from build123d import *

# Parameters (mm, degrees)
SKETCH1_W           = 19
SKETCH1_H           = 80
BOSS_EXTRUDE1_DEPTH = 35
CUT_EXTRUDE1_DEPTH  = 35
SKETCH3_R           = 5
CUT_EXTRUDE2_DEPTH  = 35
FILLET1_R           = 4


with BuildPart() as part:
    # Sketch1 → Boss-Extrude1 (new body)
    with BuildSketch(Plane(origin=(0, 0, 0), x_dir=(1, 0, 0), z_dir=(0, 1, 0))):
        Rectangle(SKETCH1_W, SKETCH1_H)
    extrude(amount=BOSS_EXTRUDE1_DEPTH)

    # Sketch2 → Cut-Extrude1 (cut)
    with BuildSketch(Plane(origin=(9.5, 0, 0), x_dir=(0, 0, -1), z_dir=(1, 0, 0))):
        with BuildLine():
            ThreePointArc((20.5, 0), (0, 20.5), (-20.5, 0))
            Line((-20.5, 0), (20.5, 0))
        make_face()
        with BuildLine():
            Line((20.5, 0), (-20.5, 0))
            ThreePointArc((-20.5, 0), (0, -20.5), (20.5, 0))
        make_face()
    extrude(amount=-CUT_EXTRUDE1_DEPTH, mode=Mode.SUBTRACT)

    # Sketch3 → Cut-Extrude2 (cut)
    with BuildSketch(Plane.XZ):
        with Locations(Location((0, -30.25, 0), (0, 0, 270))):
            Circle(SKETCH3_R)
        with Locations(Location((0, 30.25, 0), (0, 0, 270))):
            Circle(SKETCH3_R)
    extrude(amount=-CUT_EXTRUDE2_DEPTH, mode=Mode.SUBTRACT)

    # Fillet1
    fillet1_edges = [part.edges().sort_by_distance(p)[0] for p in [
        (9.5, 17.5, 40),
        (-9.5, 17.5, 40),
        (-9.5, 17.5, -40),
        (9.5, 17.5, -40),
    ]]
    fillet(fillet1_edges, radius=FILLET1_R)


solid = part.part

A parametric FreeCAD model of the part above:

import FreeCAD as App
import Part
import Sketcher
Q = App.Units.Quantity


def edges_at(feature, points):
    """Names of the edges that pass closest to the given points."""
    edges = feature.Shape.Edges
    near = lambda p: min(range(len(edges)), key=lambda i: edges[i].distToShape(Part.Vertex(*p))[0])
    return sorted({f"Edge{near(p) + 1}" for p in points})

doc = App.newDocument("Part")
body = doc.addObject("PartDesign::Body", "Body")

sketch1 = body.newObject("Sketcher::SketchObject", "Sketch")
sketch1.AttachmentSupport = (doc.getObject("XZ_Plane"), [""])
sketch1.MapMode = "FlatFace"
sketch1.addGeometry([
    Part.LineSegment(App.Vector(-9.5, -40, 0), App.Vector(-9.5, 40, 0)),
    Part.LineSegment(App.Vector(-9.5, 40, 0), App.Vector(9.5, 40, 0)),
    Part.LineSegment(App.Vector(9.5, 40, 0), App.Vector(9.5, -40, 0)),
    Part.LineSegment(App.Vector(9.5, -40, 0), App.Vector(-9.5, -40, 0)),
], False)
sketch1.addConstraint([
    Sketcher.Constraint("Coincident", 0, 2, 1, 1),
    Sketcher.Constraint("Coincident", 1, 2, 2, 1),
    Sketcher.Constraint("Coincident", 2, 2, 3, 1),
    Sketcher.Constraint("Coincident", 3, 2, 0, 1),
    Sketcher.Constraint("Vertical", 0),
    Sketcher.Constraint("Horizontal", 1),
    Sketcher.Constraint("Vertical", 2),
    Sketcher.Constraint("Horizontal", 3),
    Sketcher.Constraint("Symmetric", 0, 2, 2, 2, -1, 1),
    Sketcher.Constraint("DistanceX", 1, 1, 1, 2, Q("19 mm")),
    Sketcher.Constraint("DistanceY", 0, 1, 0, 2, Q("80 mm")),
])
pad1 = body.newObject("PartDesign::Pad", "Pad")
pad1.Profile = sketch1
pad1.Length = 35
pad1.Reversed = True

sketch2 = body.newObject("Sketcher::SketchObject", "Sketch001")
sketch2.AttachmentSupport = (doc.getObject("YZ_Plane"), [""])
sketch2.MapMode = "FlatFace"
sketch2.AttachmentOffset = App.Placement(App.Vector(0, 0, 9.5), App.Rotation())
sketch2.addGeometry(Part.Circle(App.Vector(0, 0, 0), App.Vector(0, 0, 1), 20.5), False)
sketch2.addConstraint([
    Sketcher.Constraint("Coincident", 0, 3, -1, 1),
    Sketcher.Constraint("Diameter", 0, Q("41 mm")),
])
pocket1 = body.newObject("PartDesign::Pocket", "Pocket")
pocket1.Profile = sketch2
pocket1.Length = 35

sketch3 = body.newObject("Sketcher::SketchObject", "Sketch002")
sketch3.AttachmentSupport = (doc.getObject("XZ_Plane"), [""])
sketch3.MapMode = "FlatFace"
sketch3.addGeometry([
    Part.Circle(App.Vector(0, -30.25, 0), App.Vector(0, 0, 1), 5),
    Part.Circle(App.Vector(0, 30.25, 0), App.Vector(0, 0, 1), 5),
], False)
sketch3.addConstraint([
    Sketcher.Constraint("Equal", 0, 1),
    Sketcher.Constraint("Symmetric", 0, 3, 1, 3, -1, 1),
    Sketcher.Constraint("PointOnObject", 0, 3, -2),
    Sketcher.Constraint("Diameter", 0, Q("10 mm")),
    Sketcher.Constraint("DistanceY", 0, 3, 1, 3, Q("60.5 mm")),
])
pocket2 = body.newObject("PartDesign::Pocket", "Pocket001")
pocket2.Profile = sketch3
pocket2.Length = 35
doc.recompute()

fillet = body.newObject("PartDesign::Fillet", "Fillet")
fillet.Base = (pocket2, edges_at(pocket2, [
    (9.5, 17.5, 40),
    (-9.5, 17.5, 40),
    (-9.5, 17.5, -40),
    (9.5, 17.5, -40),
]))
fillet.Radius = 4

doc.recompute()
